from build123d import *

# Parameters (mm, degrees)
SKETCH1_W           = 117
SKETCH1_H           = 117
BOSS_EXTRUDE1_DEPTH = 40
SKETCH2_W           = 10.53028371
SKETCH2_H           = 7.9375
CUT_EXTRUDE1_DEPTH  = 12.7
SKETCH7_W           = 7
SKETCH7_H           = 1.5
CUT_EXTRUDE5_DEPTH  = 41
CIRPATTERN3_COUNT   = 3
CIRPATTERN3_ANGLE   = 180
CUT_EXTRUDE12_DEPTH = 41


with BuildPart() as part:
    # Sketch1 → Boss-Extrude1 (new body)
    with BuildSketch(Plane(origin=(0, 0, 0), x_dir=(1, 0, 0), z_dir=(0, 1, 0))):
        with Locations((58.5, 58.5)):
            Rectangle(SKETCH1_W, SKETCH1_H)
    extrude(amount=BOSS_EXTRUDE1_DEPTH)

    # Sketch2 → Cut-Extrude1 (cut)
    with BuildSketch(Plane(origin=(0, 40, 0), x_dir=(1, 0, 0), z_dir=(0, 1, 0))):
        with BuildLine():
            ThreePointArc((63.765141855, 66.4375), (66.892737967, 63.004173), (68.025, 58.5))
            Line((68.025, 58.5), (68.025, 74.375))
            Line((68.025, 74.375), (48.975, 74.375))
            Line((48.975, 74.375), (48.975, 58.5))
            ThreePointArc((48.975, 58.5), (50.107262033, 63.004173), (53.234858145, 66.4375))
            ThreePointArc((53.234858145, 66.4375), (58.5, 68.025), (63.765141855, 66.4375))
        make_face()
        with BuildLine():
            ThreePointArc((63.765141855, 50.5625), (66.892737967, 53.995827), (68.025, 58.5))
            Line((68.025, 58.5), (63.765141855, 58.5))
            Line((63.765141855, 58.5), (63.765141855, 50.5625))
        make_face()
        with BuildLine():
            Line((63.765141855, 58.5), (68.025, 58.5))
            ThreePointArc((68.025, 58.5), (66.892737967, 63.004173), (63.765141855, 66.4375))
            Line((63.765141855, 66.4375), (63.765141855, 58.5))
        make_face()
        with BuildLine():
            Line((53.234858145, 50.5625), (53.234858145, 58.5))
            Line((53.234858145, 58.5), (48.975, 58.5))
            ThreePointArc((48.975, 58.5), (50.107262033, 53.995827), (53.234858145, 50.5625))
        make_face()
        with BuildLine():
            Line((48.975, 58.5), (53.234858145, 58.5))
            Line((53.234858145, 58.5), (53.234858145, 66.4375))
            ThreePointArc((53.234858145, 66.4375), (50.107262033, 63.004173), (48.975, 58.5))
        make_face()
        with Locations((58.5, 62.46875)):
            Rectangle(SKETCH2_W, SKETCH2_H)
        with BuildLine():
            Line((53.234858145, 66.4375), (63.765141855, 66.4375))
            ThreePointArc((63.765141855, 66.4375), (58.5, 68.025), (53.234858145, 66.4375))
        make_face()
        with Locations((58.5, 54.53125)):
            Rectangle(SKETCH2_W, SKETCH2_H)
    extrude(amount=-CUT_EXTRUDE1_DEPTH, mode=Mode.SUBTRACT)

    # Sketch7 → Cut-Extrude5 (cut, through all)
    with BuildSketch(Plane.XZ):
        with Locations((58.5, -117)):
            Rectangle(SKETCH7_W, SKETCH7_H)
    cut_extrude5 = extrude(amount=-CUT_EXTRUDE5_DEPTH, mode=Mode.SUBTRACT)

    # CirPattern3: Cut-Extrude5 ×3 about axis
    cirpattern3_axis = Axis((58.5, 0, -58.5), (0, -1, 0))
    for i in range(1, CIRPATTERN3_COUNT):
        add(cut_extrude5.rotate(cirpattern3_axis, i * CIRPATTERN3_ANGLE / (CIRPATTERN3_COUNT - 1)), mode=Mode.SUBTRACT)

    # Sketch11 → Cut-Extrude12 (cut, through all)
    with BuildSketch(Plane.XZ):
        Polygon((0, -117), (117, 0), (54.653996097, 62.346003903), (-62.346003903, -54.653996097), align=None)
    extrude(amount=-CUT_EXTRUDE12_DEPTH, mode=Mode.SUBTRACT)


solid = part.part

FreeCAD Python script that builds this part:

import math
import FreeCAD as App
import Part
import Sketcher
from FreeCAD import Vector
Q = App.Units.Quantity

doc = App.newDocument("Part")
body = doc.addObject("PartDesign::Body", "Body")

# Sketch on XZ plane
sketch1 = doc.addObject("Sketcher::SketchObject", "Sketch")
body.addObject(sketch1)
sketch1.AttachmentSupport = (doc.XZ_Plane, [""])
sketch1.MapMode = "FlatFace"
sketch1.addGeometry([
    Part.LineSegment(Vector(0, -117, 0), Vector(0, 0, 0)),
    Part.LineSegment(Vector(0, 0, 0), Vector(117, 0, 0)),
    Part.LineSegment(Vector(117, 0, 0), Vector(117, -117, 0)),
    Part.LineSegment(Vector(117, -117, 0), Vector(0, -117, 0)),
], False)
sketch1.addConstraint([
    Sketcher.Constraint("Coincident", 0, 2, 1, 1),
    Sketcher.Constraint("Coincident", 1, 2, 2, 1),
    Sketcher.Constraint("Coincident", 2, 2, 3, 1),
    Sketcher.Constraint("Coincident", 3, 2, 0, 1),
    Sketcher.Constraint("Vertical", 0),
    Sketcher.Constraint("Horizontal", 1),
    Sketcher.Constraint("Vertical", 2),
    Sketcher.Constraint("Horizontal", 3),
    Sketcher.Constraint("Coincident", 0, 2, -1, 1),
    Sketcher.Constraint("Equal", 3, 0),
    Sketcher.Constraint("DistanceX", 1, 1, 1, 2, Q("117 mm")),
])
pad1 = doc.addObject("PartDesign::Pad", "Pad")
body.addObject(pad1)
pad1.Profile = sketch1
pad1.Length = 40
pad1.Reversed = True

# Sketch on XZ plane
sketch2 = doc.addObject("Sketcher::SketchObject", "Sketch001")
body.addObject(sketch2)
sketch2.AttachmentSupport = (doc.XZ_Plane, [""])
sketch2.MapMode = "FlatFace"
sketch2.AttachmentOffset = App.Placement(Vector(0, 0, -40), App.Rotation())
sketch2.addGeometry([
    Part.ArcOfCircle(Part.Circle(Vector(58.5, -58.5, 0), Vector(0, 0, 1), 9.525), math.radians(0), math.radians(56.44269)),  # 0
    Part.LineSegment(Vector(68.025, -58.5, 0), Vector(68.025, -74.375, 0)),  # 1
    Part.LineSegment(Vector(68.025, -74.375, 0), Vector(48.975, -74.375, 0)),  # 2
    Part.LineSegment(Vector(48.975, -74.375, 0), Vector(48.975, -58.5, 0)),  # 3
    Part.ArcOfCircle(Part.Circle(Vector(58.5, -58.5, 0), Vector(0, 0, 1), 9.525), math.radians(123.55731), math.radians(180)),  # 4
    Part.LineSegment(Vector(53.234858, -50.5625, 0), Vector(63.765142, -50.5625, 0)),  # 5
], False)
sketch2.addConstraint([
    Sketcher.Constraint("Tangent", 0, 1, 1, 1),
    Sketcher.Constraint("Coincident", 1, 2, 2, 1),
    Sketcher.Constraint("Coincident", 2, 2, 3, 1),
    Sketcher.Constraint("Tangent", 3, 2, 4, 2),
    Sketcher.Constraint("Coincident", 4, 1, 5, 1),
    Sketcher.Constraint("Coincident", 5, 2, 0, 2),
    Sketcher.Constraint("Vertical", 1),
    Sketcher.Constraint("Horizontal", 2),
    Sketcher.Constraint("Vertical", 3),
    Sketcher.Constraint("Horizontal", 5),
    Sketcher.Constraint("Coincident", 4, 3, 0, 3),
    Sketcher.Constraint("Equal", 0, 4),
    Sketcher.Constraint("Radius", 0, Q("9.525 mm")),
    Sketcher.Constraint("DistanceX", -1, 1, 0, 3, Q("58.5 mm")),
    Sketcher.Constraint("DistanceY", 0, 3, -1, 1, Q("58.5 mm")),
    Sketcher.Constraint("DistanceY", 1, 2, 1, 1, Q("15.875 mm")),
    Sketcher.Constraint("DistanceY", 4, 1, -1, 1, Q("50.5625 mm")),
])
pocket1 = doc.addObject("PartDesign::Pocket", "Pocket")
body.addObject(pocket1)
pocket1.Profile = sketch2
pocket1.Length = 12.7
pocket1.Reversed = True

# Sketch on XZ plane
sketch3 = doc.addObject("Sketcher::SketchObject", "Sketch002")
body.addObject(sketch3)
sketch3.AttachmentSupport = (doc.XZ_Plane, [""])
sketch3.MapMode = "FlatFace"
sketch3.addGeometry([
    Part.LineSegment(Vector(55, -116.25, 0), Vector(55, -117.75, 0)),
    Part.LineSegment(Vector(55, -117.75, 0), Vector(62, -117.75, 0)),
    Part.LineSegment(Vector(62, -117.75, 0), Vector(62, -116.25, 0)),
    Part.LineSegment(Vector(62, -116.25, 0), Vector(55, -116.25, 0)),
], False)
sketch3.addConstraint([
    Sketcher.Constraint("Coincident", 0, 2, 1, 1),
    Sketcher.Constraint("Coincident", 1, 2, 2, 1),
    Sketcher.Constraint("Coincident", 2, 2, 3, 1),
    Sketcher.Constraint("Coincident", 3, 2, 0, 1),
    Sketcher.Constraint("Vertical", 0),
    Sketcher.Constraint("Horizontal", 1),
    Sketcher.Constraint("Vertical", 2),
    Sketcher.Constraint("Horizontal", 3),
    Sketcher.Constraint("DistanceX", 1, 1, 1, 2, Q("7 mm")),
    Sketcher.Constraint("DistanceY", 0, 2, 0, 1, Q("1.5 mm")),
    Sketcher.Constraint("DistanceX", -1, 1, 0, 2, Q("55 mm")),
    Sketcher.Constraint("DistanceY", 0, 2, -1, 1, Q("117.75 mm")),
])
pocket2 = doc.addObject("PartDesign::Pocket", "Pocket001")
body.addObject(pocket2)
pocket2.Profile = sketch3
pocket2.Type = "ThroughAll"
doc.recompute()

datumline = doc.addObject("PartDesign::Line", "DatumLine")
body.addObject(datumline)
datumline.Placement = App.Placement(Vector(58.5, 0, -58.5), App.Rotation(Vector(0, 0, 1), Vector(0, -1, 0)))
polarpattern = doc.addObject("PartDesign::PolarPattern", "PolarPattern")
body.addObject(polarpattern)
polarpattern.Originals = [pocket2]
polarpattern.Axis = (datumline, [""])
polarpattern.Angle = 180
polarpattern.Occurrences = 3
body.Tip = polarpattern

# Sketch on XZ plane
sketch4 = doc.addObject("Sketcher::SketchObject", "Sketch003")
body.addObject(sketch4)
sketch4.AttachmentSupport = (doc.XZ_Plane, [""])
sketch4.MapMode = "FlatFace"
sketch4.addGeometry([
    Part.LineSegment(Vector(0, -117, 0), Vector(117, 0, 0)),
    Part.LineSegment(Vector(117, 0, 0), Vector(54.653996, 62.346004, 0)),
    Part.LineSegment(Vector(54.653996, 62.346004, 0), Vector(-62.346004, -54.653996, 0)),
    Part.LineSegment(Vector(-62.346004, -54.653996, 0), Vector(0, -117, 0)),
], False)
sketch4.addConstraint([
    Sketcher.Constraint("Coincident", 0, 2, 1, 1),
    Sketcher.Constraint("Coincident", 1, 2, 2, 1),
    Sketcher.Constraint("Coincident", 2, 2, 3, 1),
    Sketcher.Constraint("Coincident", 3, 2, 0, 1),
    Sketcher.Constraint("PointOnObject", 0, 2, -1),
    Sketcher.Constraint("PointOnObject", 3, 2, -2),
    Sketcher.Constraint("Perpendicular", 0, 1),
    Sketcher.Constraint("Perpendicular", 1, 2),
    Sketcher.Constraint("Perpendicular", 2, 3),
    Sketcher.Constraint("Angle", 0, Q("45 deg")),
    Sketcher.Constraint("DistanceX", -1, 1, 0, 2, Q("117 mm")),
    Sketcher.Constraint("Distance", 1, Q("88.170564 mm")),
])
pocket3 = doc.addObject("PartDesign::Pocket", "Pocket002")
body.addObject(pocket3)
pocket3.Profile = sketch4
pocket3.Type = "ThroughAll"

doc.recompute()
